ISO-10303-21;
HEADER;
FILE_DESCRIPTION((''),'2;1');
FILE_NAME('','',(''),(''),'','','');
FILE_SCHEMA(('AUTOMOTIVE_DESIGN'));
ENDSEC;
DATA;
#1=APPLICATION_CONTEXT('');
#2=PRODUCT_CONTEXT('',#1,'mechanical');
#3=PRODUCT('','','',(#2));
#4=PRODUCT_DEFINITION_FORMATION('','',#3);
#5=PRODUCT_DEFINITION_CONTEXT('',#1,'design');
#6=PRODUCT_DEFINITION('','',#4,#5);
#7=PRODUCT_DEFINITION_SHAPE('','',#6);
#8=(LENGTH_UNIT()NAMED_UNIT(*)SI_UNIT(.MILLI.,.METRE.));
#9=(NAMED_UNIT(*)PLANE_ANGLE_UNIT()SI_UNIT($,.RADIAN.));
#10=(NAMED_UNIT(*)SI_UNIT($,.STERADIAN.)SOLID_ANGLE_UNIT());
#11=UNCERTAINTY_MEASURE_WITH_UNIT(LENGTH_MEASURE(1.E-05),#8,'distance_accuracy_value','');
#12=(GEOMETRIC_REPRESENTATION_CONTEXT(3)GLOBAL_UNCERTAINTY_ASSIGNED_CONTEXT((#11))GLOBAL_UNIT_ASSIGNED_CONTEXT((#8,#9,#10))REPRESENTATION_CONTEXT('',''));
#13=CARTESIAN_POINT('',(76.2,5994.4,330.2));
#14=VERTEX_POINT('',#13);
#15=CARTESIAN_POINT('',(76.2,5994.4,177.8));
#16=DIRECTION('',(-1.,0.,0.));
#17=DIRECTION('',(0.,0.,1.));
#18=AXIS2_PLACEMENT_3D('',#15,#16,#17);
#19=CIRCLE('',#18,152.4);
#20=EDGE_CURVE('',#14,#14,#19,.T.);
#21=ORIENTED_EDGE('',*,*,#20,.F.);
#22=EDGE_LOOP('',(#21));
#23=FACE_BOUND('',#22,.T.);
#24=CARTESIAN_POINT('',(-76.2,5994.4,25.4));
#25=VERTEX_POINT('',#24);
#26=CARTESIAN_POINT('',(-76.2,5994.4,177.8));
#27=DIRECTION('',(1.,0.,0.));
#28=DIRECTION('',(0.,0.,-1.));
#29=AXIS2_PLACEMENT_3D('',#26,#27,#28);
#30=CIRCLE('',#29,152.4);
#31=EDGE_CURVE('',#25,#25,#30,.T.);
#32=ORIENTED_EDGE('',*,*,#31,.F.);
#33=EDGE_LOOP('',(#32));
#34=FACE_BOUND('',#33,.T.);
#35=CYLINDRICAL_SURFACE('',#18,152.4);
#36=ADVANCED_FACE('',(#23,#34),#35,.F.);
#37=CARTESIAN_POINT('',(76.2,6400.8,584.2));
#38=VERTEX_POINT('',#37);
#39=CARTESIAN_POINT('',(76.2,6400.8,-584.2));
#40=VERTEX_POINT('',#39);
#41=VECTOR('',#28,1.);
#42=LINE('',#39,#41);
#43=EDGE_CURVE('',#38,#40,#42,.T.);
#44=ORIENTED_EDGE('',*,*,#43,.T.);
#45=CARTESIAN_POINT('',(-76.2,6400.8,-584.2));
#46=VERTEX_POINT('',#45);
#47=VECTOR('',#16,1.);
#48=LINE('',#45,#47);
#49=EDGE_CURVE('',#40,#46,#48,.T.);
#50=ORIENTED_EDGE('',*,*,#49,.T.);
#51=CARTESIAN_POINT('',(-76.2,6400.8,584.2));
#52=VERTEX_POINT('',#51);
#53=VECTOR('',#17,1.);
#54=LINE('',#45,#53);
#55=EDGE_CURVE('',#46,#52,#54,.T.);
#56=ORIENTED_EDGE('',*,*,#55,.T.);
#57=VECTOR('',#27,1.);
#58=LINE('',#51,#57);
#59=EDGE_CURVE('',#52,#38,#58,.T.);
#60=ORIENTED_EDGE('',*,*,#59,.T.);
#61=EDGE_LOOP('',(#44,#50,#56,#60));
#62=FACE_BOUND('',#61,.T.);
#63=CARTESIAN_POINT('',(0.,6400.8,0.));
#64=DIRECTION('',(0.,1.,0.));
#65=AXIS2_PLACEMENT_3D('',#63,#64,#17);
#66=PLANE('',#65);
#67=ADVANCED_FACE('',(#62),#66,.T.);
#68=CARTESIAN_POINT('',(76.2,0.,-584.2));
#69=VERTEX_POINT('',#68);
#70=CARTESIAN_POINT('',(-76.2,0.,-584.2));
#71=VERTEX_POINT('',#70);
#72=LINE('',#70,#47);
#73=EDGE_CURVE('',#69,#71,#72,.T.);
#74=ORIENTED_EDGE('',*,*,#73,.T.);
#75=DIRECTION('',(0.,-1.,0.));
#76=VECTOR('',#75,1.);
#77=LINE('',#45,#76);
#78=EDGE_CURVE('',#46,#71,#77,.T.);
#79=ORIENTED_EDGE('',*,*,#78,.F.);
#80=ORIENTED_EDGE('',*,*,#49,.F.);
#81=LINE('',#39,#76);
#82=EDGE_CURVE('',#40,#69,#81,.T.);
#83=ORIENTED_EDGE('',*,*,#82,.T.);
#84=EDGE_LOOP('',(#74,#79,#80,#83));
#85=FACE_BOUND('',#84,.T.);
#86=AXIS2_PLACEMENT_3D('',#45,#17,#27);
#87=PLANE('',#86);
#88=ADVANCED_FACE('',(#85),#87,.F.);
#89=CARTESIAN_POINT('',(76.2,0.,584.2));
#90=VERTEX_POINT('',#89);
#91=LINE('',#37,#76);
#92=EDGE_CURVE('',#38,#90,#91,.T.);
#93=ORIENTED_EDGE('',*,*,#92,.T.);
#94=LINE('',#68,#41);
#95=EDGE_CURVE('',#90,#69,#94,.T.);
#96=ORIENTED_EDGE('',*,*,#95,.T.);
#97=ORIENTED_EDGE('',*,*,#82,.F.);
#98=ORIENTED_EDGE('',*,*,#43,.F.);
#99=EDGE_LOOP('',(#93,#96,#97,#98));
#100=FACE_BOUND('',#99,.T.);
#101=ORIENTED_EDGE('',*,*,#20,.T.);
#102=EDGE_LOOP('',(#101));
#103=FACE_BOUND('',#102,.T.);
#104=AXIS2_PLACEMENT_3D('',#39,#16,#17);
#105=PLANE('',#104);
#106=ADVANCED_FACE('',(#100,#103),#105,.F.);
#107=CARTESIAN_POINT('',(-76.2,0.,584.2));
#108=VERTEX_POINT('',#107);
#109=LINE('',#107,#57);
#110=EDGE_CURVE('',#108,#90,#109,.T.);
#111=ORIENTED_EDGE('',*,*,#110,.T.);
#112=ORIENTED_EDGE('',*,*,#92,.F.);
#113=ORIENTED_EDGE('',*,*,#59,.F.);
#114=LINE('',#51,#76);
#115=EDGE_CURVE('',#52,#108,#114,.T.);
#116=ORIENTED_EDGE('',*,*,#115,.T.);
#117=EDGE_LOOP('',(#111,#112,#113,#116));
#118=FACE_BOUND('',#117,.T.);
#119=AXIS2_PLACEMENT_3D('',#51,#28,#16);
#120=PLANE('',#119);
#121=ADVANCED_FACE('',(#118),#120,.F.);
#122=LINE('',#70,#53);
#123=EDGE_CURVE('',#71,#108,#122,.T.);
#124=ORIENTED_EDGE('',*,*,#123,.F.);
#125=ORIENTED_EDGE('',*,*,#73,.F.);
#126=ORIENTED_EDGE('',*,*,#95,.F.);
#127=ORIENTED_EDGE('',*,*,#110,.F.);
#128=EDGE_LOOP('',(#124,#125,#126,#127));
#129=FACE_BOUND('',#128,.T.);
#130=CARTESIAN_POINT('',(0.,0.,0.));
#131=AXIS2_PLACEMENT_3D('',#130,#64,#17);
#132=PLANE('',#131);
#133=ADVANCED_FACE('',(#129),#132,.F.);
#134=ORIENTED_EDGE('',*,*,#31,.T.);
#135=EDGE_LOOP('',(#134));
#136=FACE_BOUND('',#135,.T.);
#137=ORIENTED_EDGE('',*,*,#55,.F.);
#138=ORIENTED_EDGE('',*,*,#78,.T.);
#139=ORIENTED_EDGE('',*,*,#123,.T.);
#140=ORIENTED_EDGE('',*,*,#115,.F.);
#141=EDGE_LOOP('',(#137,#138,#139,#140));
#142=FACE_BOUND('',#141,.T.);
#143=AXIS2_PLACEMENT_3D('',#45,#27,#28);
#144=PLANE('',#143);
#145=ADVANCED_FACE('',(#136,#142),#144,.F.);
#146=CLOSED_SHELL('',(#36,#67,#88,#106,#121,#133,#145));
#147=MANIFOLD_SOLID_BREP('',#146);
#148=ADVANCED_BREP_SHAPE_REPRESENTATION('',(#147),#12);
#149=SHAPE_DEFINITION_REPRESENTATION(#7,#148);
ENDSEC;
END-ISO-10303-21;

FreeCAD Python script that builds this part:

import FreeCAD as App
import Part
import Sketcher
Q = App.Units.Quantity


def add_polygon(sketch, points):
    """Adds a closed chain of lines whose ends are joined by coincident constraints."""
    first, n = sketch.GeometryCount, len(points)
    for a, b in zip(points, points[1:] + points[:1]):
        sketch.addGeometry(Part.LineSegment(App.Vector(*a, 0), App.Vector(*b, 0)), False)
    for i in range(n):
        sketch.addConstraint(Sketcher.Constraint("Coincident", first + i, 2, first + (i + 1) % n, 1))

doc = App.newDocument("Part")
body = doc.addObject("PartDesign::Body", "Body")

sketch1 = body.newObject("Sketcher::SketchObject", "Sketch")
sketch1.AttachmentSupport = (doc.getObject("XZ_Plane"), [""])
sketch1.MapMode = "FlatFace"
add_polygon(sketch1, [(-76, -584), (-76, 584), (76, 584), (76, -584)])
sketch1.addConstraint(Sketcher.Constraint("Vertical", 0))
sketch1.addConstraint(Sketcher.Constraint("Horizontal", 1))
sketch1.addConstraint(Sketcher.Constraint("Vertical", 2))
sketch1.addConstraint(Sketcher.Constraint("Horizontal", 3))
sketch1.addConstraint(Sketcher.Constraint("Symmetric", 0, 2, 2, 2, -1, 1))
sketch1.addConstraint(Sketcher.Constraint("DistanceX", 1, 1, 1, 2, Q("6 in")))
sketch1.addConstraint(Sketcher.Constraint("DistanceY", 0, 1, 0, 2, Q("46 in")))
pad1 = body.newObject("PartDesign::Pad", "Pad")
pad1.Profile = sketch1
pad1.Length = Q("252 in")
pad1.Reversed = True

sketch2 = body.newObject("Sketcher::SketchObject", "Sketch001")
sketch2.AttachmentSupport = (doc.getObject("YZ_Plane"), [""])
sketch2.MapMode = "FlatFace"
sketch2.AttachmentOffset = App.Placement(App.Vector(0, 0, -3 * 25.4), App.Rotation())
sketch2.addGeometry(Part.Circle(App.Vector(5994, 178, 0), App.Vector(0, 0, 1), 152), False)
sketch2.addConstraint(Sketcher.Constraint("Diameter", 0, Q("12 in")))
sketch2.addConstraint(Sketcher.Constraint("DistanceX", -1, 1, 0, 3, Q("236 in")))
sketch2.addConstraint(Sketcher.Constraint("DistanceY", -1, 1, 0, 3, Q("7 in")))
pocket1 = body.newObject("PartDesign::Pocket", "Pocket")
pocket1.Profile = sketch2
pocket1.Type = "ThroughAll"
pocket1.Midplane = True

doc.recompute()
